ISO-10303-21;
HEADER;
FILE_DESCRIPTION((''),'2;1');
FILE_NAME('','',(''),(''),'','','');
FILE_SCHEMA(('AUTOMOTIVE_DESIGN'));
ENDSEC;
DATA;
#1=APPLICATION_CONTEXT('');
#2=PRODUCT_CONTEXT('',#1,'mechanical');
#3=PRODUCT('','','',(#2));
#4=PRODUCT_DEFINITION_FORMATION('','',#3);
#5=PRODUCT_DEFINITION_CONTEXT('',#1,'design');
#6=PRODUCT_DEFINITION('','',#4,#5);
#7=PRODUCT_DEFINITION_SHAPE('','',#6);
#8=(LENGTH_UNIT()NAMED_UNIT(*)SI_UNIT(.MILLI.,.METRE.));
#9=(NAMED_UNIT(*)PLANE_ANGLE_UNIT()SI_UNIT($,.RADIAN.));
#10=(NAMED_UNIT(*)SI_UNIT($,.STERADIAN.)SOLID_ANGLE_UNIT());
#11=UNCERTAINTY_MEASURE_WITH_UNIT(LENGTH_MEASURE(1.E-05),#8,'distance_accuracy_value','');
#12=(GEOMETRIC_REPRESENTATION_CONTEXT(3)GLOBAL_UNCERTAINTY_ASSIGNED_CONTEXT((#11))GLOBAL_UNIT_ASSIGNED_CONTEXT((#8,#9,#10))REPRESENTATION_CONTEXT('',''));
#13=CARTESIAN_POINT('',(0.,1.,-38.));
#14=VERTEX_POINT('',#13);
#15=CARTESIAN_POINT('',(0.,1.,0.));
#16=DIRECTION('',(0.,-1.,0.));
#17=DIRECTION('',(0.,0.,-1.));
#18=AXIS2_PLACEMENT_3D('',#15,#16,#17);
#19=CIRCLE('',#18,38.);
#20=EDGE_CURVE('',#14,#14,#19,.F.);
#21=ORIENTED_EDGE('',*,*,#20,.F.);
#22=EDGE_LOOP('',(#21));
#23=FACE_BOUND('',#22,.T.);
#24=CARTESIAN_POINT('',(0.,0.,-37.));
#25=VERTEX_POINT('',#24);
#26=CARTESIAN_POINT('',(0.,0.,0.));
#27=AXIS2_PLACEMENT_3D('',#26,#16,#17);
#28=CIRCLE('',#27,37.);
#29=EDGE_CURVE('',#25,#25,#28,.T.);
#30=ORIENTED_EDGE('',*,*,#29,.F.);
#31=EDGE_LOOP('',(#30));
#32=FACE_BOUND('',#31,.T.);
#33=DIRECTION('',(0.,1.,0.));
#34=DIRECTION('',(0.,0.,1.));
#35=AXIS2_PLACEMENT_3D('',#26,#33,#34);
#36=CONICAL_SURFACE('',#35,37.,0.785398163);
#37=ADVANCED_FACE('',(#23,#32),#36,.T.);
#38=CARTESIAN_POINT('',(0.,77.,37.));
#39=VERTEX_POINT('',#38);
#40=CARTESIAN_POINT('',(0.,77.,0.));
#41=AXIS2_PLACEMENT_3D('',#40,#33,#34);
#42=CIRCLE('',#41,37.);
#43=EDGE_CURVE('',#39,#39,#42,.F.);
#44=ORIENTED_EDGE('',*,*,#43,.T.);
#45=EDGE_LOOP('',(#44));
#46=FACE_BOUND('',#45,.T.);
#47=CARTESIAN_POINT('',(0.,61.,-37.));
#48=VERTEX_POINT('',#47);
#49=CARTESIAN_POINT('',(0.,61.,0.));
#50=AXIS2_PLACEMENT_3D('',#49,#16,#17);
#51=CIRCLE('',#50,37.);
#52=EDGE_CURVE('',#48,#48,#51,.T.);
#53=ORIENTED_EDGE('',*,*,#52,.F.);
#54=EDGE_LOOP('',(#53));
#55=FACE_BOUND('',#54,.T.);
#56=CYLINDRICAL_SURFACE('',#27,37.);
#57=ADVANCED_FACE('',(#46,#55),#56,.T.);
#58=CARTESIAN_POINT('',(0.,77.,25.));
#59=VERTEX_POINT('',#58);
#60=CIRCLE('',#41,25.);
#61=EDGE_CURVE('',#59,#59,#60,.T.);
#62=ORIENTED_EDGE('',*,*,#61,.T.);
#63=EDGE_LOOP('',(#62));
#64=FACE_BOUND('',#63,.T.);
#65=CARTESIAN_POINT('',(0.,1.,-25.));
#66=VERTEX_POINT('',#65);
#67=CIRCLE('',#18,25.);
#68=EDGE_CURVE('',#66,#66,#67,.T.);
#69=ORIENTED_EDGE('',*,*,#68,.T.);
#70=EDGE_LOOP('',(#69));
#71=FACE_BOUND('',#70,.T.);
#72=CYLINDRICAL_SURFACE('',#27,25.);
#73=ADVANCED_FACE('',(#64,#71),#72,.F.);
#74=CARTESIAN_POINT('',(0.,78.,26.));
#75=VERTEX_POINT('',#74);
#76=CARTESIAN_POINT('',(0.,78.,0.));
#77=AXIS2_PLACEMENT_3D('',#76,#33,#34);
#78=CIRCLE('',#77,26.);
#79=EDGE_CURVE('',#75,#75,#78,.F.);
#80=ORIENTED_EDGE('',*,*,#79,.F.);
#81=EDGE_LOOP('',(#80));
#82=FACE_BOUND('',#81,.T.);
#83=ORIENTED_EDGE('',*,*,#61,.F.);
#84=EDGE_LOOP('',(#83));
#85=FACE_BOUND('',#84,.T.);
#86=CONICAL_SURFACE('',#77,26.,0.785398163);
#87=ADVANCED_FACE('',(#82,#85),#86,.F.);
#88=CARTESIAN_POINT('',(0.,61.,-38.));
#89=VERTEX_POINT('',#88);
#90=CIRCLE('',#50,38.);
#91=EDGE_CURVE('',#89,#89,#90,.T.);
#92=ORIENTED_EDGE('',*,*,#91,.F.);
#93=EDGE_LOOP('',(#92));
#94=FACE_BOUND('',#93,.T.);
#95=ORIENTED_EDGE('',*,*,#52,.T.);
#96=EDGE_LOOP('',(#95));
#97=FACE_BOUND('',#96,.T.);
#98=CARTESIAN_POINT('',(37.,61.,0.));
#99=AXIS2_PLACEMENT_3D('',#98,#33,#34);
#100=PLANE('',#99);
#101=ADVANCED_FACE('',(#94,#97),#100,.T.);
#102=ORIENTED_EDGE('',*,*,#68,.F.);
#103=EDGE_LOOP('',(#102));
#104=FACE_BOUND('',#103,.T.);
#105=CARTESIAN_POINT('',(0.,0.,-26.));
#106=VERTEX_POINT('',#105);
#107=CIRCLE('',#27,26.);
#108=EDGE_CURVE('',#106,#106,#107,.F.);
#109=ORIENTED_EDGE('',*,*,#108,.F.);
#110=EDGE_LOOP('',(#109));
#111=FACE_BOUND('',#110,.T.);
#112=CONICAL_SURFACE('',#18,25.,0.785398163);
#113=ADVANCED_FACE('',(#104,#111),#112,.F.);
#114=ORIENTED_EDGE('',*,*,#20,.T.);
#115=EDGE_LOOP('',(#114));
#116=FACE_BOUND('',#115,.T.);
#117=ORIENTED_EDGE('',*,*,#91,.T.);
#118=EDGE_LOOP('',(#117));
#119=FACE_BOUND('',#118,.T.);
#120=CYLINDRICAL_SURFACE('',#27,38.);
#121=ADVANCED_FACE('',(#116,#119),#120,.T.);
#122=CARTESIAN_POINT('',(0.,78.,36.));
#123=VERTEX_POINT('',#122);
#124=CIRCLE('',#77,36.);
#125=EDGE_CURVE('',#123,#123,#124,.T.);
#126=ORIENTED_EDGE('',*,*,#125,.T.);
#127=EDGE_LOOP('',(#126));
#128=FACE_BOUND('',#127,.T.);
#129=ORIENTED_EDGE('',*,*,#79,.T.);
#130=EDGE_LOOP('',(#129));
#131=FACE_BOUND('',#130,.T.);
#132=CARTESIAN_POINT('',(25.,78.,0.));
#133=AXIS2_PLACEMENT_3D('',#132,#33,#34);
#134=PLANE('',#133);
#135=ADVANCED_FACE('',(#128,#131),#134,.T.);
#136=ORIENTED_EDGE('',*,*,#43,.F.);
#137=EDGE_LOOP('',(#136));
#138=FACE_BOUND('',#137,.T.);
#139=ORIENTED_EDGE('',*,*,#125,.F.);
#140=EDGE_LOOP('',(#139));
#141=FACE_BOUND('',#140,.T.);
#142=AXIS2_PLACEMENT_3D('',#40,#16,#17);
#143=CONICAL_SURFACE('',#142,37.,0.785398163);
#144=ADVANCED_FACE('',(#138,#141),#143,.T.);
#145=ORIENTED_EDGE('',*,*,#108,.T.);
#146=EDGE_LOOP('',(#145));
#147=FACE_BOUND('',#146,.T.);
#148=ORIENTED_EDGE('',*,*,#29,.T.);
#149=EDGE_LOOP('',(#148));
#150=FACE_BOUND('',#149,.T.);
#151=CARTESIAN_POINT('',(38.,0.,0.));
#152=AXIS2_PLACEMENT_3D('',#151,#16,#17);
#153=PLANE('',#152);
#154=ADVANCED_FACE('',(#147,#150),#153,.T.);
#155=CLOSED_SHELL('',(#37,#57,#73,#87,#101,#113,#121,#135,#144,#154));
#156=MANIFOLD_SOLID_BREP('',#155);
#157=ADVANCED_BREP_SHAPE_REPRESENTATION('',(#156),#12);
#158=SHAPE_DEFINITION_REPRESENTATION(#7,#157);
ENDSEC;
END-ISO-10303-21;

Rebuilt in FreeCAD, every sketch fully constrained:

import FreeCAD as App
import Part
import Sketcher
Q = App.Units.Quantity


def edges_at(feature, points):
    """Names of the edges that pass closest to the given points."""
    edges = feature.Shape.Edges
    near = lambda p: min(range(len(edges)), key=lambda i: edges[i].distToShape(Part.Vertex(*p))[0])
    return sorted({f"Edge{near(p) + 1}" for p in points})


def add_polygon(sketch, points):
    """Adds a closed chain of lines whose ends are joined by coincident constraints."""
    first, n = sketch.GeometryCount, len(points)
    for a, b in zip(points, points[1:] + points[:1]):
        sketch.addGeometry(Part.LineSegment(App.Vector(*a, 0), App.Vector(*b, 0)), False)
    for i in range(n):
        sketch.addConstraint(Sketcher.Constraint("Coincident", first + i, 2, first + (i + 1) % n, 1))

doc = App.newDocument("Part")
params = doc.addObject("Spreadsheet::Sheet", "Params")
for row, (alias, value) in enumerate([
    ("sketch1_width", "13 mm"),
    ("sketch1_width2", "1 mm"),
    ("sketch1_height", "78 mm"),
    ("sketch1_height2", "61 mm"),
    ("revolution_angle", "360 deg"),
    ("chamfer_size", "1 mm"),
], start=1):
    params.set(f"A{row}", alias)
    params.set(f"B{row}", "=" + value)
    params.setAlias(f"B{row}", alias)

body = doc.addObject("PartDesign::Body", "Body")

sketch1 = doc.addObject("Sketcher::SketchObject", "Sketch")
body.addObject(sketch1)
sketch1.AttachmentSupport = (doc.XY_Plane, [""])
sketch1.MapMode = "FlatFace"
add_polygon(sketch1, [(25, 78), (25, 0), (38, 0), (38, 61), (37, 61), (37, 78)])
sketch1.addConstraint([
    Sketcher.Constraint("Vertical", 0),
    Sketcher.Constraint("Horizontal", 1),
    Sketcher.Constraint("Vertical", 2),
    Sketcher.Constraint("Horizontal", 3),
    Sketcher.Constraint("Vertical", 4),
    Sketcher.Constraint("Horizontal", 5),
    Sketcher.Constraint("PointOnObject", 0, 2, -1),
    Sketcher.Constraint("DistanceX", 1, 1, 1, 2, Q("13 mm")),
    Sketcher.Constraint("DistanceX", 3, 2, 3, 1, Q("1 mm")),
    Sketcher.Constraint("DistanceY", 0, 2, 0, 1, Q("78 mm")),
    Sketcher.Constraint("DistanceY", 2, 1, 2, 2, Q("61 mm")),
    Sketcher.Constraint("DistanceX", -1, 1, 0, 2, Q("25 mm")),
])
sketch1.setExpression("Constraints[13]", "Params.sketch1_width")
sketch1.setExpression("Constraints[14]", "Params.sketch1_width2")
sketch1.setExpression("Constraints[15]", "Params.sketch1_height")
sketch1.setExpression("Constraints[16]", "Params.sketch1_height2")
revolution = doc.addObject("PartDesign::Revolution", "Revolution")
body.addObject(revolution)
revolution.Profile = sketch1
revolution.ReferenceAxis = (sketch1, ["V_Axis"])
revolution.setExpression("Angle", "Params.revolution_angle")
doc.recompute()

chamfer = doc.addObject("PartDesign::Chamfer", "Chamfer")
body.addObject(chamfer)
chamfer.Base = (revolution, edges_at(revolution, [
    (0, 78, 37),
    (0, 78, 25),
    (0, 0, 25),
    (0, 0, 38),
]))
chamfer.setExpression("Size", "Params.chamfer_size")

doc.recompute()
